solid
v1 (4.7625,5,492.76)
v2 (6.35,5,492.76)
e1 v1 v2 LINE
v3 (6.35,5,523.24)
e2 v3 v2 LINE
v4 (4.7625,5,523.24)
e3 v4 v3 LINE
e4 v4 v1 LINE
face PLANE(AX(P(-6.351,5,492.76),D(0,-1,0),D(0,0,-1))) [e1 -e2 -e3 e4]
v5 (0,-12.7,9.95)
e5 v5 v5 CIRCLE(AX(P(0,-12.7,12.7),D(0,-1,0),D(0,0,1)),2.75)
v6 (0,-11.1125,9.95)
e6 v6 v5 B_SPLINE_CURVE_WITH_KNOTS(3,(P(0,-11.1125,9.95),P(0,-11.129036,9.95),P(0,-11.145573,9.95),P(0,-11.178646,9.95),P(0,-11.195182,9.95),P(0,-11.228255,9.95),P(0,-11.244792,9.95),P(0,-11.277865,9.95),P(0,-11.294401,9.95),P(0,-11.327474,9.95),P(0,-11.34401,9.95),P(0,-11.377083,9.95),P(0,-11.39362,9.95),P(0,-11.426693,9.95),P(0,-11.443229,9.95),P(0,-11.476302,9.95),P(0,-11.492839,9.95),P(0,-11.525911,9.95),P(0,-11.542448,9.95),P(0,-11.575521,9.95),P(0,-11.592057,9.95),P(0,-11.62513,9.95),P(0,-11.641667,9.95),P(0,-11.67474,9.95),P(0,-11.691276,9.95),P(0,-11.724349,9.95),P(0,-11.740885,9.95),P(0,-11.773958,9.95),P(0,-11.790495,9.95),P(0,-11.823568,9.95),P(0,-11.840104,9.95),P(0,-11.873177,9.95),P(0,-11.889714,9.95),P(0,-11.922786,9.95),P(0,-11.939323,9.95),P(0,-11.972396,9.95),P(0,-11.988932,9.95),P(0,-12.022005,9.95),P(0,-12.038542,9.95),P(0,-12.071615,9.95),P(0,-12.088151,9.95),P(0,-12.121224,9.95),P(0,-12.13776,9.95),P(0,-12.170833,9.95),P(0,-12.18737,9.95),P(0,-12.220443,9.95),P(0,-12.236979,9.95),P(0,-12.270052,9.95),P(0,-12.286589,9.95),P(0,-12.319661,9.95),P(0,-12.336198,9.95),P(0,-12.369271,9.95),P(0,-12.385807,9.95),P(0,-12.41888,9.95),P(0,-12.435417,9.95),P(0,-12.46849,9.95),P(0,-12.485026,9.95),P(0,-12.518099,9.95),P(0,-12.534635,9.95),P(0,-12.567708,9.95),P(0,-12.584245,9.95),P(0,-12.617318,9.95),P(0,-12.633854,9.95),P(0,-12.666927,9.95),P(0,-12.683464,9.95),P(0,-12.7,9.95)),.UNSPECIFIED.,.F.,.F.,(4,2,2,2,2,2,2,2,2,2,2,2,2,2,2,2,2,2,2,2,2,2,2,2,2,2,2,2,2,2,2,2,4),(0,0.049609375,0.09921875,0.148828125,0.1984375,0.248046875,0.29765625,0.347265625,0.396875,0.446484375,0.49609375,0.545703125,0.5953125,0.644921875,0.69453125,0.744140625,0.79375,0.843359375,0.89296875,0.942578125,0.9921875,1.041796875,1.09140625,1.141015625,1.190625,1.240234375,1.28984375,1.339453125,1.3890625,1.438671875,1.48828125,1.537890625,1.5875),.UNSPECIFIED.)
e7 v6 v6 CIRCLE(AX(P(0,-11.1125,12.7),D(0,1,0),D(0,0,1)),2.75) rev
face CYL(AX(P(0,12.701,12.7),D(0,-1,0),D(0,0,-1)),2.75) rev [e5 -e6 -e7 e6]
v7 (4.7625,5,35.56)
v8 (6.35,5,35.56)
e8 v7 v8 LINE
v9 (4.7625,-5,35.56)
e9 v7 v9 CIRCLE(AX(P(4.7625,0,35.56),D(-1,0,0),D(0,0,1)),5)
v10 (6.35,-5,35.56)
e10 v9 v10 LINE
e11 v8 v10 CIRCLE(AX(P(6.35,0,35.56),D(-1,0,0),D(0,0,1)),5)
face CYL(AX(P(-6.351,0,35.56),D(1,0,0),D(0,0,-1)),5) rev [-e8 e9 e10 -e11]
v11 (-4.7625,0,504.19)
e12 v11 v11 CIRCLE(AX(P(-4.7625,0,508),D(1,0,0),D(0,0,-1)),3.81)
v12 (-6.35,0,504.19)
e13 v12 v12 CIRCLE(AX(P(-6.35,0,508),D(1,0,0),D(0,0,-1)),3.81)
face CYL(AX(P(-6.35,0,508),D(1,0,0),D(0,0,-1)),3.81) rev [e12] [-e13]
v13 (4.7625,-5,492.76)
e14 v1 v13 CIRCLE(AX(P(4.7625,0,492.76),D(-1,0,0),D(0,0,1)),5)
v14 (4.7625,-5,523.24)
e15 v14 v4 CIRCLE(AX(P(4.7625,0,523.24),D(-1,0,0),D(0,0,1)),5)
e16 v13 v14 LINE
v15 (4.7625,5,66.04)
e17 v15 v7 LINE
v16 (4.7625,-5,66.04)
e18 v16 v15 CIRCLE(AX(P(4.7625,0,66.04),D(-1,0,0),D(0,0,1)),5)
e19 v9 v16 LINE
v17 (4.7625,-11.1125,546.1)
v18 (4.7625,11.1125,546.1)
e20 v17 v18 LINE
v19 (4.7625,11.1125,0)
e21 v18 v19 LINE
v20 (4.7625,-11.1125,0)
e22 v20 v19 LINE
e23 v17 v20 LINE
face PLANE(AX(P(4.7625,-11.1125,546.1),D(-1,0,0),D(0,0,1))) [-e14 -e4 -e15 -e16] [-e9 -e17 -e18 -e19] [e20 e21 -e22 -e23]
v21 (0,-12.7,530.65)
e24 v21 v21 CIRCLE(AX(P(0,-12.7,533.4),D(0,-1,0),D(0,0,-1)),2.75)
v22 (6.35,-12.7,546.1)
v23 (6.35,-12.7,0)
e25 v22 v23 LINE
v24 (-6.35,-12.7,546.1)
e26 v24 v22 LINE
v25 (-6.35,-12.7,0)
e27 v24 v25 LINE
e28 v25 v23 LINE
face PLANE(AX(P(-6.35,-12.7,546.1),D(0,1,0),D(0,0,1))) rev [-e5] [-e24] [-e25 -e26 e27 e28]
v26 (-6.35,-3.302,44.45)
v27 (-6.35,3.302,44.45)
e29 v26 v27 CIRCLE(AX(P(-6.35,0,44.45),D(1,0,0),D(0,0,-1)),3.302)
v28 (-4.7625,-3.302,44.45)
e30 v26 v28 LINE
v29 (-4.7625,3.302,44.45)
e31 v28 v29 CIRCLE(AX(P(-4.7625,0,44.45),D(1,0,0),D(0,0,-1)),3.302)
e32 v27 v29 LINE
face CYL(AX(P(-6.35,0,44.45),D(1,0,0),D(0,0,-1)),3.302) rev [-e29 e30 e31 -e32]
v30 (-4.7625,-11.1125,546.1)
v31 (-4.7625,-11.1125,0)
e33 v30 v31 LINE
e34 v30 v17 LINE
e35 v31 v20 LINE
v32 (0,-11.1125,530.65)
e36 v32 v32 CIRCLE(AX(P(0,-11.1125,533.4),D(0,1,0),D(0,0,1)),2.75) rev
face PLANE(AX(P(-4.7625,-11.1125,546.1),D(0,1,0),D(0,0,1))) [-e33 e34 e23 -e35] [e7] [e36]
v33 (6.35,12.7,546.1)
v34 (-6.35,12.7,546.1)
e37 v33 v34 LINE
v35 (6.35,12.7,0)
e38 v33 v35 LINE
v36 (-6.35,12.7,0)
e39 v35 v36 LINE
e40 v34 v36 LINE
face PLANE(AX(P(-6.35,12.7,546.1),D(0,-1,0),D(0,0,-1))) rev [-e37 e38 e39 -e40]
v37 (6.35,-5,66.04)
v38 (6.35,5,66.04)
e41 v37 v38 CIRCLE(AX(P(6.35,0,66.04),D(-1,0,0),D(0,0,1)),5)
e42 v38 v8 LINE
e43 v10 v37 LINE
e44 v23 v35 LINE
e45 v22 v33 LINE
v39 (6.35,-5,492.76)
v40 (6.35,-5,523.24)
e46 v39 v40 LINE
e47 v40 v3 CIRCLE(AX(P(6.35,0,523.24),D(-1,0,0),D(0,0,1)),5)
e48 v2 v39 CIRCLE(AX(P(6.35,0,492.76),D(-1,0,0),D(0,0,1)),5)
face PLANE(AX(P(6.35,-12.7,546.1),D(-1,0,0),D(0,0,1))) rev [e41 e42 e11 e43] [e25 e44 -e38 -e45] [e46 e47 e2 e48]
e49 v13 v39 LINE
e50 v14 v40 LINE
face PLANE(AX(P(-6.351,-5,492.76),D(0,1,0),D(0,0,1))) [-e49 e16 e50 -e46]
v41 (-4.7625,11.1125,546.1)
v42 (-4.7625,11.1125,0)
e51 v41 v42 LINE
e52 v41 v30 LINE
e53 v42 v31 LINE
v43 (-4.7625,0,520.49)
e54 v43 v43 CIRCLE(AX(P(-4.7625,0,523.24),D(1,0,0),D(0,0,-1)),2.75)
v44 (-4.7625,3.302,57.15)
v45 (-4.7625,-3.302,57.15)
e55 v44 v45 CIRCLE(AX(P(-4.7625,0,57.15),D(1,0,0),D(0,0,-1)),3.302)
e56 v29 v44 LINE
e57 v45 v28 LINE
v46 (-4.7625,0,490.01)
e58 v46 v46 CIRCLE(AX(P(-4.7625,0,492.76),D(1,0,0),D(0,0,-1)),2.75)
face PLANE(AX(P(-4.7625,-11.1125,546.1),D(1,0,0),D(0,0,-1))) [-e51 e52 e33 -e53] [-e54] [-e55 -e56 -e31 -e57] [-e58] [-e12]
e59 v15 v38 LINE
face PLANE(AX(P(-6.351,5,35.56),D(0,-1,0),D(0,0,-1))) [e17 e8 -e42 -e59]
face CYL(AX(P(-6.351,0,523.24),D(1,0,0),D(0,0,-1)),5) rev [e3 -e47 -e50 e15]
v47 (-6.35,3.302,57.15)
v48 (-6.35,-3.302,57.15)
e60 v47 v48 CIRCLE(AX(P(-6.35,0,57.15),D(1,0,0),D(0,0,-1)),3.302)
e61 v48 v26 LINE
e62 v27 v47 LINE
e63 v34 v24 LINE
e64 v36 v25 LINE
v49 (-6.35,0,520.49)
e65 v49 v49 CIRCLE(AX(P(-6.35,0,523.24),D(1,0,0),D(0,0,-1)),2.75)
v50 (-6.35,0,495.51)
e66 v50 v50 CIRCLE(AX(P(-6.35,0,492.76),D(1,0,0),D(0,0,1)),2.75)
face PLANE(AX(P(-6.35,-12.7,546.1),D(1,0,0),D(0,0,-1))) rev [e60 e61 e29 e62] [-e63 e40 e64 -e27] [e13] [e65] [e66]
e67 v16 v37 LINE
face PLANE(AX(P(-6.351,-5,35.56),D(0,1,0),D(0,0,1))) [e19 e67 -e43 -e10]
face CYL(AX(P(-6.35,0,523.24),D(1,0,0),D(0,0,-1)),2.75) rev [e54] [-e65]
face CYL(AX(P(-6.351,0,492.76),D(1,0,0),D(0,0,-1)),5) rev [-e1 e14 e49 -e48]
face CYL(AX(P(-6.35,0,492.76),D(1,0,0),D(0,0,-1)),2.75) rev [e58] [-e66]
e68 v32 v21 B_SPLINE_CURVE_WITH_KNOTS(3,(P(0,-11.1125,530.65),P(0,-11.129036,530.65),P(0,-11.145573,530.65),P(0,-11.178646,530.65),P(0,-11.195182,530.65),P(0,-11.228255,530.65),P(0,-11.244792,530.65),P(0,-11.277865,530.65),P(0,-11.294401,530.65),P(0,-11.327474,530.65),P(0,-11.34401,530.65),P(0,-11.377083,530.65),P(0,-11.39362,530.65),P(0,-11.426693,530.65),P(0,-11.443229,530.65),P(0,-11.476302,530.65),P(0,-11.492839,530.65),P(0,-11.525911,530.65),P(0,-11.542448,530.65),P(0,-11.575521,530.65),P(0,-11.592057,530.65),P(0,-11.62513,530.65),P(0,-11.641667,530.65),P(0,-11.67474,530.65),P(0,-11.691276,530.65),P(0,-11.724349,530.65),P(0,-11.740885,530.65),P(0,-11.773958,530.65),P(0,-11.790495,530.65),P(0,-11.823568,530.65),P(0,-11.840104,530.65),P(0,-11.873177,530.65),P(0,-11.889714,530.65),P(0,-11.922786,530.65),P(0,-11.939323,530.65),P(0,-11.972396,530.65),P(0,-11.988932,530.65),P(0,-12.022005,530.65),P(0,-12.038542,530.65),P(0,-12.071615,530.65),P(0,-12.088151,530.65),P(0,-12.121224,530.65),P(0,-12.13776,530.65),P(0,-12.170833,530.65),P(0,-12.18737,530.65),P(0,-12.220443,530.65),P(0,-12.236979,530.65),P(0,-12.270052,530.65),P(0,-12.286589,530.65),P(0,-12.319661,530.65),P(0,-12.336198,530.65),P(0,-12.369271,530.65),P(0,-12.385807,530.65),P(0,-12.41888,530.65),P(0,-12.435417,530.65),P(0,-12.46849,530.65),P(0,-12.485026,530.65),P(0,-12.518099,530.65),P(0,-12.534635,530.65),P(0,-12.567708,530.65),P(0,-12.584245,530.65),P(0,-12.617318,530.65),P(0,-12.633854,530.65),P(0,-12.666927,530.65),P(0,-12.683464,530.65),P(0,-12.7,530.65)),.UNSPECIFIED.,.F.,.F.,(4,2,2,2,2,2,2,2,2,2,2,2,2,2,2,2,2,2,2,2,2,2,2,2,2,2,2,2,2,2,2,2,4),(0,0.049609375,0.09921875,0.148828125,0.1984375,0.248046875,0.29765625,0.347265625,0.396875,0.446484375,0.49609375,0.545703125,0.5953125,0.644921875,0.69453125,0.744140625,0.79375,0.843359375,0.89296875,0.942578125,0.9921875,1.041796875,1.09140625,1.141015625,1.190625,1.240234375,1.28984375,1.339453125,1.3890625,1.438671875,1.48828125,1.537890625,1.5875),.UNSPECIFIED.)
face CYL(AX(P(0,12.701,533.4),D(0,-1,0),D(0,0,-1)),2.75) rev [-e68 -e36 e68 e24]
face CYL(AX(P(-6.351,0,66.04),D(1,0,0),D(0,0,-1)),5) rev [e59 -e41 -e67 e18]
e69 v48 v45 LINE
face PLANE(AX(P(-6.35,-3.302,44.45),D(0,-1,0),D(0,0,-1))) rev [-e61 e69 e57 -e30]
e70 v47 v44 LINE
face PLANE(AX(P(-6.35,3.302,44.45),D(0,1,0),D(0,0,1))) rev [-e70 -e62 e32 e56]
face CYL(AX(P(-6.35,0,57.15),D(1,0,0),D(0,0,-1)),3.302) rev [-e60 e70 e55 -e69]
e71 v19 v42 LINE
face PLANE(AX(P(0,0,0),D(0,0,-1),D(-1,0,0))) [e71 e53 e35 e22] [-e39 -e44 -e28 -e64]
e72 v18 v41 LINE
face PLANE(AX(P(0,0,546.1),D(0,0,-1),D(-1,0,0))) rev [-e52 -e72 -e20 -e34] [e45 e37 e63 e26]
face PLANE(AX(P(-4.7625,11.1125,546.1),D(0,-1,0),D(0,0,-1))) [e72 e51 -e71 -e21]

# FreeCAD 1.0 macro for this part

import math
import FreeCAD as App
import Part
import Sketcher

V = App.Vector
Q = App.Units.Quantity


def add_polygon(sketch, points):
    """Adds a closed chain of lines whose ends are joined by coincident constraints."""
    first, n = sketch.GeometryCount, len(points)
    for a, b in zip(points, points[1:] + points[:1]):
        sketch.addGeometry(Part.LineSegment(App.Vector(*a, 0), App.Vector(*b, 0)), False)
    for i in range(n):
        sketch.addConstraint(Sketcher.Constraint("Coincident", first + i, 2, first + (i + 1) % n, 1))

doc = App.newDocument("Part")
params = doc.addObject("Spreadsheet::Sheet", "Params")
for row, (alias, value) in enumerate([
    ("sketch1_height", "1 in"),
    ("sketch1_width", "0.5 in"),
    ("sketch1_width2", "0.375 in"),
    ("sketch1_height2", "0.875 in"),
    ("pad1_length", "21.5 in"),
    ("sketch2_diameter", "0.3 in"),
    ("sketch2_radius", "0.13 in"),
    ("sketch2_height", "0.5 in"),
    ("sketch3_height", "1.2 in"),
    ("pocket2_length", "0.0625 in"),
    ("sketch4_height", "1.2 in"),
    ("pocket3_length", "0.0625 in"),
], start=1):
    params.set(f"A{row}", alias)
    params.set(f"B{row}", "=" + value)
    params.setAlias(f"B{row}", alias)

body = doc.addObject("PartDesign::Body", "Body")

sketch1 = body.newObject("Sketcher::SketchObject", "Sketch")
sketch1.AttachmentSupport = (doc.getObject("XY_Plane"), [""])
sketch1.MapMode = "FlatFace"
add_polygon(sketch1, [(-6, 13), (-6, -13), (6, -13), (6, 13)])
add_polygon(sketch1, [(5, -11), (-5, -11), (-5, 11), (5, 11)])
sketch1.addConstraint([
    Sketcher.Constraint("Vertical", 0),
    Sketcher.Constraint("Horizontal", 1),
    Sketcher.Constraint("Vertical", 2),
    Sketcher.Constraint("Horizontal", 3),
    Sketcher.Constraint("Horizontal", 4),
    Sketcher.Constraint("Vertical", 5),
    Sketcher.Constraint("Horizontal", 6),
    Sketcher.Constraint("Vertical", 7),
    Sketcher.Constraint("Symmetric", 0, 2, 2, 2, -1, 1),
    Sketcher.Constraint("Symmetric", 4, 2, 6, 2, -1, 1),
    Sketcher.Constraint("DistanceY", 0, 2, 0, 1, Q("1 in")),
    Sketcher.Constraint("DistanceX", 1, 1, 1, 2, Q("0.5 in")),
    Sketcher.Constraint("DistanceX", 4, 2, 4, 1, Q("0.375 in")),
    Sketcher.Constraint("DistanceY", 5, 1, 5, 2, Q("0.875 in")),
])
sketch1.setExpression("Constraints[18]", "Params.sketch1_height")
sketch1.setExpression("Constraints[19]", "Params.sketch1_width")
sketch1.setExpression("Constraints[20]", "Params.sketch1_width2")
sketch1.setExpression("Constraints[21]", "Params.sketch1_height2")
pad1 = body.newObject("PartDesign::Pad", "Pad")
pad1.Profile = sketch1
pad1.setExpression("Length", "Params.pad1_length")

sketch2 = body.newObject("Sketcher::SketchObject", "Sketch001")
sketch2.AttachmentSupport = (doc.getObject("YZ_Plane"), [""])
sketch2.MapMode = "FlatFace"
sketch2.AttachmentOffset = App.Placement(V(0, 0, 0.25 * 25.4), App.Rotation())
sketch2.addGeometry([
    Part.Circle(V(0, 508, 0), V(0, 0, 1), 3.8),
    Part.Circle(V(0, 523.2, 0), V(0, 0, 1), 2.8),
    Part.Circle(V(0, 492.8, 0), V(0, 0, 1), 2.8),
    Part.LineSegment(V(-3.3, 57.1, 0), V(-3.3, 44.5, 0)),
    Part.ArcOfCircle(Part.Circle(V(0, 44.5, 0), V(0, 0, 1), 3.3), math.radians(180), math.radians(360)),
    Part.LineSegment(V(3.3, 44.5, 0), V(3.3, 57.1, 0)),
    Part.ArcOfCircle(Part.Circle(V(0, 57.1, 0), V(0, 0, 1), 3.3), math.radians(0), math.radians(180)),
], False)
sketch2.addConstraint([
    Sketcher.Constraint("Tangent", 3, 2, 4, 1),
    Sketcher.Constraint("Tangent", 4, 2, 5, 1),
    Sketcher.Constraint("Tangent", 5, 2, 6, 1),
    Sketcher.Constraint("Tangent", 6, 2, 3, 1),
    Sketcher.Constraint("Vertical", 3),
    Sketcher.Constraint("Vertical", 5),
    Sketcher.Constraint("Equal", 1, 2),
    Sketcher.Constraint("PointOnObject", 0, 3, -2),
    Sketcher.Constraint("PointOnObject", 1, 3, -2),
    Sketcher.Constraint("PointOnObject", 2, 3, -2),
    Sketcher.Constraint("PointOnObject", 4, 3, -2),
    Sketcher.Constraint("Diameter", 0, Q("0.3 in")),
    Sketcher.Constraint("Radius", 4, Q("0.13 in")),
    Sketcher.Constraint("DistanceY", 3, 2, 3, 1, Q("0.5 in")),
    Sketcher.Constraint("DistanceY", -1, 1, 0, 3, Q("20 in")),
    Sketcher.Constraint("DistanceY", -1, 1, 1, 3, Q("20.6 in")),
    Sketcher.Constraint("DistanceY", -1, 1, 2, 3, Q("19.4 in")),
    Sketcher.Constraint("Diameter", 1, Q("5.5 mm")),
    Sketcher.Constraint("DistanceY", -1, 1, 4, 3, Q("1.75 in")),
])
sketch2.setExpression("Constraints[11]", "Params.sketch2_diameter")
sketch2.setExpression("Constraints[12]", "Params.sketch2_radius")
sketch2.setExpression("Constraints[13]", "Params.sketch2_height")
pocket1 = body.newObject("PartDesign::Pocket", "Pocket")
pocket1.Profile = sketch2
pocket1.Type = "ThroughAll"

sketch3 = body.newObject("Sketcher::SketchObject", "Sketch002")
sketch3.AttachmentSupport = (doc.getObject("YZ_Plane"), [""])
sketch3.MapMode = "FlatFace"
sketch3.AttachmentOffset = App.Placement(V(0, 0, 0.25 * 25.4), App.Rotation())
sketch3.addGeometry([
    Part.LineSegment(V(5, 66, 0), V(5, 36, 0)),
    Part.ArcOfCircle(Part.Circle(V(0, 36, 0), V(0, 0, 1), 5), math.radians(180), math.radians(360)),
    Part.LineSegment(V(-5, 36, 0), V(-5, 66, 0)),
    Part.ArcOfCircle(Part.Circle(V(0, 66, 0), V(0, 0, 1), 5), math.radians(0), math.radians(180)),
], False)
sketch3.addConstraint([
    Sketcher.Constraint("Tangent", 0, 2, 1, 2),
    Sketcher.Constraint("Tangent", 1, 1, 2, 1),
    Sketcher.Constraint("Tangent", 2, 2, 3, 2),
    Sketcher.Constraint("Tangent", 3, 1, 0, 1),
    Sketcher.Constraint("Vertical", 0),
    Sketcher.Constraint("Vertical", 2),
    Sketcher.Constraint("PointOnObject", 1, 3, -2),
    Sketcher.Constraint("DistanceY", 0, 2, 0, 1, Q("1.2 in")),
    Sketcher.Constraint("DistanceY", -1, 1, 1, 3, Q("1.4 in")),
    Sketcher.Constraint("Radius", 1, Q("5 mm")),
])
sketch3.setExpression("Constraints[7]", "Params.sketch3_height")
pocket2 = body.newObject("PartDesign::Pocket", "Pocket001")
pocket2.Profile = sketch3
pocket2.setExpression("Length", "Params.pocket2_length")

sketch4 = body.newObject("Sketcher::SketchObject", "Sketch003")
sketch4.AttachmentSupport = (doc.getObject("YZ_Plane"), [""])
sketch4.MapMode = "FlatFace"
sketch4.AttachmentOffset = App.Placement(V(0, 0, 0.25 * 25.4), App.Rotation())
sketch4.addGeometry([
    Part.LineSegment(V(5, 523, 0), V(5, 493, 0)),
    Part.ArcOfCircle(Part.Circle(V(0, 493, 0), V(0, 0, 1), 5), math.radians(180), math.radians(360)),
    Part.LineSegment(V(-5, 493, 0), V(-5, 523, 0)),
    Part.ArcOfCircle(Part.Circle(V(0, 523, 0), V(0, 0, 1), 5), math.radians(0), math.radians(180)),
], False)
sketch4.addConstraint([
    Sketcher.Constraint("Tangent", 0, 2, 1, 2),
    Sketcher.Constraint("Tangent", 1, 1, 2, 1),
    Sketcher.Constraint("Tangent", 2, 2, 3, 2),
    Sketcher.Constraint("Tangent", 3, 1, 0, 1),
    Sketcher.Constraint("Vertical", 0),
    Sketcher.Constraint("Vertical", 2),
    Sketcher.Constraint("PointOnObject", 1, 3, -2),
    Sketcher.Constraint("DistanceY", 0, 2, 0, 1, Q("1.2 in")),
    Sketcher.Constraint("DistanceY", -1, 1, 1, 3, Q("19.4 in")),
    Sketcher.Constraint("Radius", 1, Q("5 mm")),
])
sketch4.setExpression("Constraints[7]", "Params.sketch4_height")
pocket3 = body.newObject("PartDesign::Pocket", "Pocket002")
pocket3.Profile = sketch4
pocket3.setExpression("Length", "Params.pocket3_length")

sketch5 = body.newObject("Sketcher::SketchObject", "Sketch004")
sketch5.AttachmentSupport = (doc.getObject("XZ_Plane"), [""])
sketch5.MapMode = "FlatFace"
sketch5.AttachmentOffset = App.Placement(V(0, 0, 0.5 * 25.4), App.Rotation())
sketch5.addGeometry(Part.Circle(V(0, 533.4, 0), V(0, 0, 1), 2.8), False)
sketch5.addConstraint([
    Sketcher.Constraint("PointOnObject", 0, 3, -2),
    Sketcher.Constraint("DistanceY", -1, 1, 0, 3, Q("21 in")),
    Sketcher.Constraint("Diameter", 0, Q("5.5 mm")),
])
pocket4 = body.newObject("PartDesign::Pocket", "Pocket003")
pocket4.Profile = sketch5
pocket4.Type = "UpToFirst"

sketch6 = body.newObject("Sketcher::SketchObject", "Sketch005")
sketch6.AttachmentSupport = (doc.getObject("XZ_Plane"), [""])
sketch6.MapMode = "FlatFace"
sketch6.AttachmentOffset = App.Placement(V(0, 0, 0.5 * 25.4), App.Rotation())
sketch6.addGeometry(Part.Circle(V(0, 12.7, 0), V(0, 0, 1), 2.8), False)
sketch6.addConstraint([
    Sketcher.Constraint("PointOnObject", 0, 3, -2),
    Sketcher.Constraint("DistanceY", -1, 1, 0, 3, Q("0.5 in")),
    Sketcher.Constraint("Diameter", 0, Q("5.5 mm")),
])
pocket5 = body.newObject("PartDesign::Pocket", "Pocket004")
pocket5.Profile = sketch6
pocket5.Type = "UpToFirst"

doc.recompute()
